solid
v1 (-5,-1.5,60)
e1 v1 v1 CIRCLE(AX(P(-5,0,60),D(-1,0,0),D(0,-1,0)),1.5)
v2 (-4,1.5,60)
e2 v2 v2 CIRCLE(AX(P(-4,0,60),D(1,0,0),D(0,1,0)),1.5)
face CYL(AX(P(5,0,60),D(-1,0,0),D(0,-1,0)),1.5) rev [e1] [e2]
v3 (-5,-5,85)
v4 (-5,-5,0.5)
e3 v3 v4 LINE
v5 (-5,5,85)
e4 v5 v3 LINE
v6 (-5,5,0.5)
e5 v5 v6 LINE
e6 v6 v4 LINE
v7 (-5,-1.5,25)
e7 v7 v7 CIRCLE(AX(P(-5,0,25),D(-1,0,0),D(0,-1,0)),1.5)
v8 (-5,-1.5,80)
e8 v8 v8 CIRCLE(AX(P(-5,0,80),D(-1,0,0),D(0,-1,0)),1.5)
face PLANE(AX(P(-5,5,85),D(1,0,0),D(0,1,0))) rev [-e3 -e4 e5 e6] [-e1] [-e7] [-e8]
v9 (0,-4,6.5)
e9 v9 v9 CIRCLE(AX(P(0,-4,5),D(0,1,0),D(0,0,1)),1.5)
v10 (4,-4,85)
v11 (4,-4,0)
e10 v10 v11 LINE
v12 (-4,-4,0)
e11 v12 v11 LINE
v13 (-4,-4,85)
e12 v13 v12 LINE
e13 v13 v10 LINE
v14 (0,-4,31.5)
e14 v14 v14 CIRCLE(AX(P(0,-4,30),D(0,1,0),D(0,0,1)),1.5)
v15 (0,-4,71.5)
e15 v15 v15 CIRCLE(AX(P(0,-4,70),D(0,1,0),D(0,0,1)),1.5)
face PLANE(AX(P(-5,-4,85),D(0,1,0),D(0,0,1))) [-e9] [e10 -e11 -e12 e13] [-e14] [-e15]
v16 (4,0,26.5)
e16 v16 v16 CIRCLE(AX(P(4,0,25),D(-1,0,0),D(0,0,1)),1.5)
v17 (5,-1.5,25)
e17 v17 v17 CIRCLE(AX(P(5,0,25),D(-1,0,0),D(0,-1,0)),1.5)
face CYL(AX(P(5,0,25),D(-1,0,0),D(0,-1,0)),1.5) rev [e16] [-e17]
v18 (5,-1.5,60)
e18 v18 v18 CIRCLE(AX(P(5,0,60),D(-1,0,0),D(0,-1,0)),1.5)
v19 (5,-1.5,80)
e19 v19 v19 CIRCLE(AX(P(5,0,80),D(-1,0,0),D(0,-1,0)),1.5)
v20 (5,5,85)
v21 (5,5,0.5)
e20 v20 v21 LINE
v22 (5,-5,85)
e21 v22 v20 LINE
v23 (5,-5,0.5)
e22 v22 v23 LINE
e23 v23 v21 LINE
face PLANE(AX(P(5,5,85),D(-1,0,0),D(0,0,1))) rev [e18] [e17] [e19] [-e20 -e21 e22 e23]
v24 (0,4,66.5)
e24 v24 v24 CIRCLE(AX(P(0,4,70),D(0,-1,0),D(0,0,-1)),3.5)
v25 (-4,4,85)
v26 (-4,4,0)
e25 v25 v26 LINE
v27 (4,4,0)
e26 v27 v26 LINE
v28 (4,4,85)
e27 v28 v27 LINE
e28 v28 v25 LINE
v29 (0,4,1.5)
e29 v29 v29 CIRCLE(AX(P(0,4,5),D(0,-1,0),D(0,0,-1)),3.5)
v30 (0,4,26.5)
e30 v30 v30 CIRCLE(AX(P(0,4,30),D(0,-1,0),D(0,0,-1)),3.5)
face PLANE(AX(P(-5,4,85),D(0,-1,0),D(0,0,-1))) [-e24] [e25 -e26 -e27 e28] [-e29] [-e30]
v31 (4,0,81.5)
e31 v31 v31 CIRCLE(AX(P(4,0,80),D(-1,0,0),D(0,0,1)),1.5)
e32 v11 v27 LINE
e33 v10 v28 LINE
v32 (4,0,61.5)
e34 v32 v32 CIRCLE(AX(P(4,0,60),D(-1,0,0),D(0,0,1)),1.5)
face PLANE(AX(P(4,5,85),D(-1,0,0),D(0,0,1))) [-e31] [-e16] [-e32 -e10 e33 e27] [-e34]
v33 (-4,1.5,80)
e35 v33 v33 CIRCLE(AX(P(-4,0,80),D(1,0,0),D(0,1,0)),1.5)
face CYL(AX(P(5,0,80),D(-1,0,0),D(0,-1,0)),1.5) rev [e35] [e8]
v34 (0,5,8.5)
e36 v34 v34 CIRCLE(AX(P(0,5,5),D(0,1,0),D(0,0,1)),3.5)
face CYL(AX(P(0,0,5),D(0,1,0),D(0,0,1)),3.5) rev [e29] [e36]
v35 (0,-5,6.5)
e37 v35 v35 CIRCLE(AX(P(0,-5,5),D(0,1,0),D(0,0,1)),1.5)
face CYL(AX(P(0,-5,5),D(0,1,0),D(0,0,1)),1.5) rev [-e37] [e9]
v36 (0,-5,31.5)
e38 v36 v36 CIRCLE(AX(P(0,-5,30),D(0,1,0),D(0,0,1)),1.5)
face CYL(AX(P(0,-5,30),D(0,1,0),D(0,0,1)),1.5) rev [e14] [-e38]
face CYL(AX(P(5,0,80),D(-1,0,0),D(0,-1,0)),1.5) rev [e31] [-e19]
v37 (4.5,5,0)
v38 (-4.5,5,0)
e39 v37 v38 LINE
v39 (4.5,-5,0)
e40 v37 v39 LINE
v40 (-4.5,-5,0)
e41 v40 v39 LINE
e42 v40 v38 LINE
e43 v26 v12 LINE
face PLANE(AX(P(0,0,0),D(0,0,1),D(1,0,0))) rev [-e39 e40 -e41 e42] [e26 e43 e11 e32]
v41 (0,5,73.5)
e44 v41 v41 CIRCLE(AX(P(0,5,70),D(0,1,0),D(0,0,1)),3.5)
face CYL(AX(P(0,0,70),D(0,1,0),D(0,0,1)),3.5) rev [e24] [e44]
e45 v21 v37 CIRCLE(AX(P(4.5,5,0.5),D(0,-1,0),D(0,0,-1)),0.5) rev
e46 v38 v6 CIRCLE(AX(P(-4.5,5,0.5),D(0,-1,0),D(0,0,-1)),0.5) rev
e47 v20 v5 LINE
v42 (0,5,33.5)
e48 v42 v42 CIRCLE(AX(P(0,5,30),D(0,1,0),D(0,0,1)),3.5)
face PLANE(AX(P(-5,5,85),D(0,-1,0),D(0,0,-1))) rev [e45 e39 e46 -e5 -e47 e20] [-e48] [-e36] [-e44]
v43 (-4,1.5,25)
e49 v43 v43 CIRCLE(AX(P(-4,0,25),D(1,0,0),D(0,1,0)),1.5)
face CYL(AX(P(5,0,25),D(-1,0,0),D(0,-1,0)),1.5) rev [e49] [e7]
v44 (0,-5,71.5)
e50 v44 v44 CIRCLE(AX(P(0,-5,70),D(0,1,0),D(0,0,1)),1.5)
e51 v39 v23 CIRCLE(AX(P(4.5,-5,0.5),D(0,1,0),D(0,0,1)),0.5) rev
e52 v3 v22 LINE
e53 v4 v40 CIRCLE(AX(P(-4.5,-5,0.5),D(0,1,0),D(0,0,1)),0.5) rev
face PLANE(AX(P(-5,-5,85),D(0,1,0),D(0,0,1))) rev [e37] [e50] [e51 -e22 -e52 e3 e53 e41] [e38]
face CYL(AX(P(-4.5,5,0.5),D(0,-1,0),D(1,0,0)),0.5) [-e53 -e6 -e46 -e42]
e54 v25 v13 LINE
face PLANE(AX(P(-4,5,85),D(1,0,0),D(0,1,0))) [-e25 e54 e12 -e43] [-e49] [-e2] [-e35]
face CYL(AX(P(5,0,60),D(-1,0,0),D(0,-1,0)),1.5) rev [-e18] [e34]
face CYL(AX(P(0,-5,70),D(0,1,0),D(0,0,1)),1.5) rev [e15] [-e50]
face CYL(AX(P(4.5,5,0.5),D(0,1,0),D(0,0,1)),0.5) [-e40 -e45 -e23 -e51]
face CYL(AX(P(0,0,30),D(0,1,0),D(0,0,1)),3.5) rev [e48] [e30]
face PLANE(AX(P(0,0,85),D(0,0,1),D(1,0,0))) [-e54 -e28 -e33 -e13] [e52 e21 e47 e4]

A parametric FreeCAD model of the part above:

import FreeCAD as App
import Part
import Sketcher
from FreeCAD import Vector
Q = App.Units.Quantity


def edges_at(feature, points):
    """Names of the edges that pass closest to the given points."""
    edges = feature.Shape.Edges
    near = lambda p: min(range(len(edges)), key=lambda i: edges[i].distToShape(Part.Vertex(*p))[0])
    return sorted({f"Edge{near(p) + 1}" for p in points})

doc = App.newDocument("Part")
params = doc.addObject("Spreadsheet::Sheet", "Params")
for row, (alias, value) in enumerate([
    ("sketch1_width", "10 mm"),
    ("sketch1_width2", "8 mm"),
    ("pad1_length", "85 mm"),
    ("sketch2_diameter", "3 mm"),
    ("sketch3_diameter", "3 mm"),
    ("pocket2_length", "10 mm"),
    ("sketch4_diameter", "7 mm"),
    ("pocket3_length", "5 mm"),
    ("fillet_radius", "0.5 mm"),
], start=1):
    params.set(f"A{row}", alias)
    params.set(f"B{row}", "=" + value)
    params.setAlias(f"B{row}", alias)

body = doc.addObject("PartDesign::Body", "Body")

sketch1 = body.newObject("Sketcher::SketchObject", "Sketch")
sketch1.AttachmentSupport = (doc.getObject("XY_Plane"), [""])
sketch1.MapMode = "FlatFace"
sketch1.addGeometry(Part.LineSegment(Vector(-5, 5, 0), Vector(-5, -5, 0)), False)
sketch1.addGeometry(Part.LineSegment(Vector(-5, -5, 0), Vector(5, -5, 0)), False)
sketch1.addGeometry(Part.LineSegment(Vector(5, -5, 0), Vector(5, 5, 0)), False)
sketch1.addGeometry(Part.LineSegment(Vector(5, 5, 0), Vector(-5, 5, 0)), False)
sketch1.addGeometry(Part.LineSegment(Vector(4, -4, 0), Vector(-4, -4, 0)), False)
sketch1.addGeometry(Part.LineSegment(Vector(-4, -4, 0), Vector(-4, 4, 0)), False)
sketch1.addGeometry(Part.LineSegment(Vector(-4, 4, 0), Vector(4, 4, 0)), False)
sketch1.addGeometry(Part.LineSegment(Vector(4, 4, 0), Vector(4, -4, 0)), False)
sketch1.addConstraint(Sketcher.Constraint("Coincident", 0, 2, 1, 1))
sketch1.addConstraint(Sketcher.Constraint("Coincident", 1, 2, 2, 1))
sketch1.addConstraint(Sketcher.Constraint("Coincident", 2, 2, 3, 1))
sketch1.addConstraint(Sketcher.Constraint("Coincident", 3, 2, 0, 1))
sketch1.addConstraint(Sketcher.Constraint("Coincident", 4, 2, 5, 1))
sketch1.addConstraint(Sketcher.Constraint("Coincident", 5, 2, 6, 1))
sketch1.addConstraint(Sketcher.Constraint("Coincident", 6, 2, 7, 1))
sketch1.addConstraint(Sketcher.Constraint("Coincident", 7, 2, 4, 1))
sketch1.addConstraint(Sketcher.Constraint("Vertical", 0))
sketch1.addConstraint(Sketcher.Constraint("Horizontal", 1))
sketch1.addConstraint(Sketcher.Constraint("Vertical", 2))
sketch1.addConstraint(Sketcher.Constraint("Horizontal", 3))
sketch1.addConstraint(Sketcher.Constraint("Horizontal", 4))
sketch1.addConstraint(Sketcher.Constraint("Vertical", 5))
sketch1.addConstraint(Sketcher.Constraint("Horizontal", 6))
sketch1.addConstraint(Sketcher.Constraint("Vertical", 7))
sketch1.addConstraint(Sketcher.Constraint("Symmetric", 0, 2, 2, 2, -1, 1))
sketch1.addConstraint(Sketcher.Constraint("Symmetric", 4, 2, 6, 2, -1, 1))
sketch1.addConstraint(Sketcher.Constraint("Equal", 3, 0))
sketch1.addConstraint(Sketcher.Constraint("Equal", 6, 5))
sketch1.addConstraint(Sketcher.Constraint("DistanceX", 1, 1, 1, 2, Q("10 mm")))
sketch1.addConstraint(Sketcher.Constraint("DistanceX", 4, 2, 4, 1, Q("8 mm")))
sketch1.setExpression("Constraints[20]", "Params.sketch1_width")
sketch1.setExpression("Constraints[21]", "Params.sketch1_width2")
pad1 = body.newObject("PartDesign::Pad", "Pad")
pad1.Profile = sketch1
pad1.setExpression("Length", "Params.pad1_length")

sketch2 = body.newObject("Sketcher::SketchObject", "Sketch001")
sketch2.AttachmentSupport = (doc.getObject("XZ_Plane"), [""])
sketch2.MapMode = "FlatFace"
sketch2.AttachmentOffset = App.Placement(Vector(0, 0, -5), App.Rotation())
sketch2.addGeometry(Part.Circle(Vector(0, 70, 0), Vector(0, 0, 1), 1.5), False)
sketch2.addGeometry(Part.Circle(Vector(0, 5, 0), Vector(0, 0, 1), 1.5), False)
sketch2.addGeometry(Part.Circle(Vector(0, 30, 0), Vector(0, 0, 1), 1.5), False)
sketch2.addConstraint(Sketcher.Constraint("Equal", 0, 1))
sketch2.addConstraint(Sketcher.Constraint("Equal", 1, 2))
sketch2.addConstraint(Sketcher.Constraint("PointOnObject", 0, 3, -2))
sketch2.addConstraint(Sketcher.Constraint("PointOnObject", 1, 3, -2))
sketch2.addConstraint(Sketcher.Constraint("PointOnObject", 2, 3, -2))
sketch2.addConstraint(Sketcher.Constraint("Diameter", 0, Q("3 mm")))
sketch2.addConstraint(Sketcher.Constraint("DistanceY", -1, 1, 0, 3, Q("70 mm")))
sketch2.addConstraint(Sketcher.Constraint("DistanceY", -1, 1, 1, 3, Q("5 mm")))
sketch2.addConstraint(Sketcher.Constraint("DistanceY", -1, 1, 2, 3, Q("30 mm")))
sketch2.setExpression("Constraints[5]", "Params.sketch2_diameter")
pocket1 = body.newObject("PartDesign::Pocket", "Pocket")
pocket1.Profile = sketch2
pocket1.Type = "ThroughAll"
pocket1.Reversed = True

sketch3 = body.newObject("Sketcher::SketchObject", "Sketch002")
sketch3.AttachmentSupport = (doc.getObject("YZ_Plane"), [""])
sketch3.MapMode = "FlatFace"
sketch3.AttachmentOffset = App.Placement(Vector(0, 0, -5), App.Rotation())
sketch3.addGeometry(Part.Circle(Vector(0, 25, 0), Vector(0, 0, 1), 1.5), False)
sketch3.addGeometry(Part.Circle(Vector(0, 60, 0), Vector(0, 0, 1), 1.5), False)
sketch3.addGeometry(Part.Circle(Vector(0, 80, 0), Vector(0, 0, 1), 1.5), False)
sketch3.addConstraint(Sketcher.Constraint("Equal", 0, 1))
sketch3.addConstraint(Sketcher.Constraint("Equal", 1, 2))
sketch3.addConstraint(Sketcher.Constraint("PointOnObject", 0, 3, -2))
sketch3.addConstraint(Sketcher.Constraint("PointOnObject", 1, 3, -2))
sketch3.addConstraint(Sketcher.Constraint("PointOnObject", 2, 3, -2))
sketch3.addConstraint(Sketcher.Constraint("Diameter", 0, Q("3 mm")))
sketch3.addConstraint(Sketcher.Constraint("DistanceY", -1, 1, 0, 3, Q("25 mm")))
sketch3.addConstraint(Sketcher.Constraint("DistanceY", -1, 1, 1, 3, Q("60 mm")))
sketch3.addConstraint(Sketcher.Constraint("DistanceY", -1, 1, 2, 3, Q("80 mm")))
sketch3.setExpression("Constraints[5]", "Params.sketch3_diameter")
pocket2 = body.newObject("PartDesign::Pocket", "Pocket001")
pocket2.Profile = sketch3
pocket2.setExpression("Length", "Params.pocket2_length")
pocket2.Reversed = True

sketch4 = body.newObject("Sketcher::SketchObject", "Sketch003")
sketch4.AttachmentSupport = (doc.getObject("XZ_Plane"), [""])
sketch4.MapMode = "FlatFace"
sketch4.AttachmentOffset = App.Placement(Vector(0, 0, -5), App.Rotation())
sketch4.addGeometry(Part.Circle(Vector(0, 5, 0), Vector(0, 0, 1), 3.5), False)
sketch4.addGeometry(Part.Circle(Vector(0, 30, 0), Vector(0, 0, 1), 3.5), False)
sketch4.addGeometry(Part.Circle(Vector(0, 70, 0), Vector(0, 0, 1), 3.5), False)
sketch4.addConstraint(Sketcher.Constraint("Equal", 0, 1))
sketch4.addConstraint(Sketcher.Constraint("Equal", 1, 2))
sketch4.addConstraint(Sketcher.Constraint("PointOnObject", 0, 3, -2))
sketch4.addConstraint(Sketcher.Constraint("PointOnObject", 1, 3, -2))
sketch4.addConstraint(Sketcher.Constraint("PointOnObject", 2, 3, -2))
sketch4.addConstraint(Sketcher.Constraint("Diameter", 0, Q("7 mm")))
sketch4.addConstraint(Sketcher.Constraint("DistanceY", -1, 1, 0, 3, Q("5 mm")))
sketch4.addConstraint(Sketcher.Constraint("DistanceY", -1, 1, 1, 3, Q("30 mm")))
sketch4.addConstraint(Sketcher.Constraint("DistanceY", -1, 1, 2, 3, Q("70 mm")))
sketch4.setExpression("Constraints[5]", "Params.sketch4_diameter")
pocket3 = body.newObject("PartDesign::Pocket", "Pocket002")
pocket3.Profile = sketch4
pocket3.setExpression("Length", "Params.pocket3_length")
pocket3.Reversed = True
doc.recompute()

fillet = body.newObject("PartDesign::Fillet", "Fillet")
fillet.Base = (pocket3, edges_at(pocket3, [(5, 0, 0), (-5, 0, 0)]))
fillet.setExpression("Radius", "Params.fillet_radius")

doc.recompute()
